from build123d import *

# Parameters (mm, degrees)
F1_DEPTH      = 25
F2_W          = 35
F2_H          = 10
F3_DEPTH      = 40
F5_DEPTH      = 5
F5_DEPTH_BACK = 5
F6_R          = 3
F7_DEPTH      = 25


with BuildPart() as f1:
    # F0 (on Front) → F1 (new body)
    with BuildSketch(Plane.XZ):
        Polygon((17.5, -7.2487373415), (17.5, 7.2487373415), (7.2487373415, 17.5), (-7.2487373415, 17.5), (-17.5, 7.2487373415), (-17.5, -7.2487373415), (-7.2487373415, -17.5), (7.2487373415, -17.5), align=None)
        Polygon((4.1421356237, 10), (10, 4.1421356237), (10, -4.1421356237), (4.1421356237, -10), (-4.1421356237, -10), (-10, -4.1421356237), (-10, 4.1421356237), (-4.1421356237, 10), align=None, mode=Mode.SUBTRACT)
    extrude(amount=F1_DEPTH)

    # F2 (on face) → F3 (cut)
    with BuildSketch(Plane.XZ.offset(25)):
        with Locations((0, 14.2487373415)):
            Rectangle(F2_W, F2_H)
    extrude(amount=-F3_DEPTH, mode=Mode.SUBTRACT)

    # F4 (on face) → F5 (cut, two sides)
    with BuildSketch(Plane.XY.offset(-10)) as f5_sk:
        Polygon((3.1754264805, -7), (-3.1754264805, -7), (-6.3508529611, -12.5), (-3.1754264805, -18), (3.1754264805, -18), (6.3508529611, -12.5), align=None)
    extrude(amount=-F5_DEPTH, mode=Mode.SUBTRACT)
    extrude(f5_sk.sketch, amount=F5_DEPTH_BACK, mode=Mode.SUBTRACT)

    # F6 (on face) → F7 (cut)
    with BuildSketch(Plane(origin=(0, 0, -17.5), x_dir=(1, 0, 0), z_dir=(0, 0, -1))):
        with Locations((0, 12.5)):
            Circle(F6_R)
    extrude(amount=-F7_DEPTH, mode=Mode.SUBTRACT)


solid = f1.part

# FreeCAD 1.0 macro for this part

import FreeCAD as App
import Part
import Sketcher

V = App.Vector
Q = App.Units.Quantity


def add_polygon(sketch, points):
    """Adds a closed chain of lines whose ends are joined by coincident constraints."""
    first, n = sketch.GeometryCount, len(points)
    for a, b in zip(points, points[1:] + points[:1]):
        sketch.addGeometry(Part.LineSegment(App.Vector(*a, 0), App.Vector(*b, 0)), False)
    for i in range(n):
        sketch.addConstraint(Sketcher.Constraint("Coincident", first + i, 2, first + (i + 1) % n, 1))

doc = App.newDocument("Part")
body = doc.addObject("PartDesign::Body", "Body")

# Sketch on XZ plane
sketch1 = doc.addObject("Sketcher::SketchObject", "Sketch")
body.addObject(sketch1)
sketch1.AttachmentSupport = (doc.XZ_Plane, [""])
sketch1.MapMode = "FlatFace"
add_polygon(sketch1, [(18, -7), (18, 7), (7, 18), (-7, 18), (-18, 7), (-18, -7), (-7, -18), (7, -18)])  # lines 0-7
add_polygon(sketch1, [(-4, 10), (4, 10), (10, 4), (10, -4), (4, -10), (-4, -10), (-10, -4), (-10, 4)])  # lines 8-15
sketch1.addConstraint(Sketcher.Constraint("Vertical", 0))
sketch1.addConstraint(Sketcher.Constraint("Horizontal", 2))
sketch1.addConstraint(Sketcher.Constraint("Vertical", 4))
sketch1.addConstraint(Sketcher.Constraint("Horizontal", 6))
sketch1.addConstraint(Sketcher.Constraint("Horizontal", 8))
sketch1.addConstraint(Sketcher.Constraint("Vertical", 10))
sketch1.addConstraint(Sketcher.Constraint("Horizontal", 12))
sketch1.addConstraint(Sketcher.Constraint("Vertical", 14))
sketch1.addConstraint(Sketcher.Constraint("Symmetric", 0, 2, 4, 2, -1, 1))
sketch1.addConstraint(Sketcher.Constraint("Symmetric", 1, 2, 5, 2, -1, 1))
sketch1.addConstraint(Sketcher.Constraint("Symmetric", 8, 2, 12, 2, -1, 1))
sketch1.addConstraint(Sketcher.Constraint("Symmetric", 9, 2, 13, 2, -1, 1))
sketch1.addConstraint(Sketcher.Constraint("Perpendicular", 1, 3))
sketch1.addConstraint(Sketcher.Constraint("Perpendicular", 5, 7))
sketch1.addConstraint(Sketcher.Constraint("Perpendicular", 7, 9))
sketch1.addConstraint(Sketcher.Constraint("Perpendicular", 9, 11))
sketch1.addConstraint(Sketcher.Constraint("Perpendicular", 13, 15))
sketch1.addConstraint(Sketcher.Constraint("Horizontal", 0, 2, 3, 2))
sketch1.addConstraint(Sketcher.Constraint("Horizontal", 4, 2, 7, 2))
sketch1.addConstraint(Sketcher.Constraint("Horizontal", 10, 2, 13, 2))
sketch1.addConstraint(Sketcher.Constraint("Horizontal", 9, 2, 14, 2))
sketch1.addConstraint(Sketcher.Constraint("Vertical", 2, 2, 5, 2))
sketch1.addConstraint(Sketcher.Constraint("Equal", 6, 0))
sketch1.addConstraint(Sketcher.Constraint("Equal", 12, 10))
sketch1.addConstraint(Sketcher.Constraint("DistanceY", -1, 1, 8, 2, 10.0))
sketch1.addConstraint(Sketcher.Constraint("DistanceX", 3, 2, 0, 2, 35.0))
sketch1.addConstraint(Sketcher.Constraint("DistanceX", 8, 1, 8, 2, 8.284271))
sketch1.addConstraint(Sketcher.Constraint("DistanceX", 8, 2, 1, 2, 3.106602))
pad1 = doc.addObject("PartDesign::Pad", "Pad")
body.addObject(pad1)
pad1.Profile = sketch1
pad1.Length = 25

# Sketch on XZ plane
sketch2 = doc.addObject("Sketcher::SketchObject", "Sketch001")
body.addObject(sketch2)
sketch2.AttachmentSupport = (doc.XZ_Plane, [""])
sketch2.MapMode = "FlatFace"
sketch2.AttachmentOffset = App.Placement(V(0, 0, 25), App.Rotation())
add_polygon(sketch2, [(-18, 19), (-18, 9), (18, 9), (18, 19)])  # lines 0-3
sketch2.addConstraint(Sketcher.Constraint("Vertical", 0))
sketch2.addConstraint(Sketcher.Constraint("Horizontal", 1))
sketch2.addConstraint(Sketcher.Constraint("Vertical", 2))
sketch2.addConstraint(Sketcher.Constraint("Horizontal", 3))
sketch2.addConstraint(Sketcher.Constraint("DistanceX", 1, 1, 1, 2, 35.0))
sketch2.addConstraint(Sketcher.Constraint("DistanceY", 0, 2, 0, 1, 10.0))
sketch2.addConstraint(Sketcher.Constraint("DistanceX", 0, 2, -1, 1, 17.5))
sketch2.addConstraint(Sketcher.Constraint("DistanceY", -1, 1, 0, 2, 9.248737))
pocket1 = doc.addObject("PartDesign::Pocket", "Pocket")
body.addObject(pocket1)
pocket1.Profile = sketch2
pocket1.Length = 40

# Sketch on XY plane
sketch3 = doc.addObject("Sketcher::SketchObject", "Sketch002")
body.addObject(sketch3)
sketch3.AttachmentSupport = (doc.XY_Plane, [""])
sketch3.MapMode = "FlatFace"
sketch3.AttachmentOffset = App.Placement(V(0, 0, -10), App.Rotation())
add_polygon(sketch3, [(3, -7), (-3, -7), (-6, -12), (-3, -18), (3, -18), (6, -12)])  # lines 0-5
sketch3.addConstraint(Sketcher.Constraint("Horizontal", 0))
sketch3.addConstraint(Sketcher.Constraint("Horizontal", 3))
sketch3.addConstraint(Sketcher.Constraint("Symmetric", 1, 2, 4, 2, -2))
sketch3.addConstraint(Sketcher.Constraint("Parallel", 1, 4))
sketch3.addConstraint(Sketcher.Constraint("Parallel", 2, 5))
sketch3.addConstraint(Sketcher.Constraint("Vertical", 0, 2, 2, 2))
sketch3.addConstraint(Sketcher.Constraint("Vertical", 3, 2, 5, 2))
sketch3.addConstraint(Sketcher.Constraint("Angle", 1, Q("-120 deg")))
sketch3.addConstraint(Sketcher.Constraint("DistanceY", 0, 2, -1, 1, 7.0))
sketch3.addConstraint(Sketcher.Constraint("DistanceY", 2, 2, -1, 1, 18.0))
sketch3.addConstraint(Sketcher.Constraint("DistanceX", 0, 2, 0, 1, 6.350853))
pocket2 = doc.addObject("PartDesign::Pocket", "Pocket001")
body.addObject(pocket2)
pocket2.Profile = sketch3
pocket2.Type = "TwoLengths"
pocket2.Length = 5
pocket2.Length2 = 5

# Sketch on XY plane
sketch4 = doc.addObject("Sketcher::SketchObject", "Sketch003")
body.addObject(sketch4)
sketch4.AttachmentSupport = (doc.XY_Plane, [""])
sketch4.MapMode = "FlatFace"
sketch4.AttachmentOffset = App.Placement(V(0, 0, -17.5), App.Rotation())
sketch4.addGeometry(Part.Circle(V(0, -12.5, 0), V(0, 0, 1), 3), False)
sketch4.addConstraint(Sketcher.Constraint("PointOnObject", 0, 3, -2))
sketch4.addConstraint(Sketcher.Constraint("Diameter", 0, 6.0))
sketch4.addConstraint(Sketcher.Constraint("DistanceY", 0, 3, -1, 1, 12.5))
pocket3 = doc.addObject("PartDesign::Pocket", "Pocket002")
body.addObject(pocket3)
pocket3.Profile = sketch4
pocket3.Length = 25
pocket3.Reversed = True

doc.recompute()
